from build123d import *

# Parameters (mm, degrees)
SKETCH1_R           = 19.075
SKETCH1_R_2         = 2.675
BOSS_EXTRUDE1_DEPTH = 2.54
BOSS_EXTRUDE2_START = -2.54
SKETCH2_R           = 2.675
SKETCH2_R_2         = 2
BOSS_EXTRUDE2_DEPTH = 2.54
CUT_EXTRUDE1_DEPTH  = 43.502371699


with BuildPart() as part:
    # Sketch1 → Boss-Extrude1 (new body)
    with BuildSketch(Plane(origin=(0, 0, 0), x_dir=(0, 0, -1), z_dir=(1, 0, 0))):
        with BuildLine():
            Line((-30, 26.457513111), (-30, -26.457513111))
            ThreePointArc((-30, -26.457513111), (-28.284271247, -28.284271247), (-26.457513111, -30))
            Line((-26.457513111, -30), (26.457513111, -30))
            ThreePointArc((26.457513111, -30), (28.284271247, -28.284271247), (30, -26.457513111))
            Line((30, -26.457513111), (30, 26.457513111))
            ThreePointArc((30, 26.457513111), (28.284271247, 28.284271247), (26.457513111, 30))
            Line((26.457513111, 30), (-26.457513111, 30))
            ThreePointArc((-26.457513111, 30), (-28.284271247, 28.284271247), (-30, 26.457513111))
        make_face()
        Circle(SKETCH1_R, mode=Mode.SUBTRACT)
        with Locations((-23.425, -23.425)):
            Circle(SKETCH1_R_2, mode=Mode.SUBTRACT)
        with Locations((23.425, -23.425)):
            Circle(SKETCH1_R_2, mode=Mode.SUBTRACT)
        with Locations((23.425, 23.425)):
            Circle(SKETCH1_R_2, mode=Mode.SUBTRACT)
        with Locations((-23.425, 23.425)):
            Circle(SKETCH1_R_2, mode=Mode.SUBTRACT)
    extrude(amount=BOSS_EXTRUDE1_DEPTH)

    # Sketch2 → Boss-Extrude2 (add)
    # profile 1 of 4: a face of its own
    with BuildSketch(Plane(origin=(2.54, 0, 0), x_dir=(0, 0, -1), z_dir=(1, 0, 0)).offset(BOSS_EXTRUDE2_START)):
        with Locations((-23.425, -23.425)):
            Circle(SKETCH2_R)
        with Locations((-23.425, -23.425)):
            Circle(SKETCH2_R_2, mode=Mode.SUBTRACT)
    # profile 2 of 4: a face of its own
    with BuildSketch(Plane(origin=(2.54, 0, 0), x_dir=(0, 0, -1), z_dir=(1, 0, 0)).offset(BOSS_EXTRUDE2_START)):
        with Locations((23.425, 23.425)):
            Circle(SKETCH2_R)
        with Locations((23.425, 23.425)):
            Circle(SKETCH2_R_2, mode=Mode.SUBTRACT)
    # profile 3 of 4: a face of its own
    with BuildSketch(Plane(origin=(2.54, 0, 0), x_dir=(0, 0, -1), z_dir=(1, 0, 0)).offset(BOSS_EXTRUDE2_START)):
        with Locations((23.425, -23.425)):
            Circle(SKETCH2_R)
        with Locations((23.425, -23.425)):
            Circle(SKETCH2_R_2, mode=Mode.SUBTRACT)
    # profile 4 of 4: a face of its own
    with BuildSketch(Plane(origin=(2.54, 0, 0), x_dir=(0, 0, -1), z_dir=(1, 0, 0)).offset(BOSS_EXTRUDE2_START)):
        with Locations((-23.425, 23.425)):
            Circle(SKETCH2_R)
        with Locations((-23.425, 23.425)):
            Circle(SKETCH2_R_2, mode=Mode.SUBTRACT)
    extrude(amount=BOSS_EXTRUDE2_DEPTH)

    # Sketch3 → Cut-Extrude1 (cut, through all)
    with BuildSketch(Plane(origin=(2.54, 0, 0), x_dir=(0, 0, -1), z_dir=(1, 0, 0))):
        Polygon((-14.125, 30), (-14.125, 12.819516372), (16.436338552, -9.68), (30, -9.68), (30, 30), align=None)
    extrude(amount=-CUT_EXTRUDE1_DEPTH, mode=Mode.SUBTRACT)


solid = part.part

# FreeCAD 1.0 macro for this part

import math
import FreeCAD as App
import Part
import Sketcher
from FreeCAD import Vector


def add_polygon(sketch, points):
    """Adds a closed chain of lines whose ends are joined by coincident constraints."""
    first, n = sketch.GeometryCount, len(points)
    for a, b in zip(points, points[1:] + points[:1]):
        sketch.addGeometry(Part.LineSegment(App.Vector(*a, 0), App.Vector(*b, 0)), False)
    for i in range(n):
        sketch.addConstraint(Sketcher.Constraint("Coincident", first + i, 2, first + (i + 1) % n, 1))

doc = App.newDocument("Part")
body = doc.addObject("PartDesign::Body", "Body")

# Sketch on YZ plane
sketch1 = body.newObject("Sketcher::SketchObject", "Sketch")
sketch1.AttachmentSupport = (doc.getObject("YZ_Plane"), [""])
sketch1.MapMode = "FlatFace"
sketch1.addGeometry(Part.LineSegment(Vector(26.457513, 30, 0), Vector(-26.457513, 30, 0)), False)
sketch1.addGeometry(Part.ArcOfCircle(Part.Circle(Vector(0, 0, 0), Vector(0, 0, 1), 40), math.radians(131.409622), math.radians(138.590378)), False)
sketch1.addGeometry(Part.LineSegment(Vector(-30, 26.457513, 0), Vector(-30, -26.457513, 0)), False)
sketch1.addGeometry(Part.ArcOfCircle(Part.Circle(Vector(0, 0, 0), Vector(0, 0, 1), 40), math.radians(-138.590378), math.radians(-131.409622)), False)
sketch1.addGeometry(Part.LineSegment(Vector(-26.457513, -30, 0), Vector(26.457513, -30, 0)), False)
sketch1.addGeometry(Part.ArcOfCircle(Part.Circle(Vector(0, 0, 0), Vector(0, 0, 1), 40), math.radians(-48.590378), math.radians(-41.409622)), False)
sketch1.addGeometry(Part.LineSegment(Vector(30, -26.457513, 0), Vector(30, 26.457513, 0)), False)
sketch1.addGeometry(Part.ArcOfCircle(Part.Circle(Vector(0, 0, 0), Vector(0, 0, 1), 40), math.radians(41.409622), math.radians(48.590378)), False)
sketch1.addGeometry(Part.Circle(Vector(-23.425, 23.425, 0), Vector(0, 0, 1), 2.675), False)
sketch1.addGeometry(Part.Circle(Vector(-23.425, -23.425, 0), Vector(0, 0, 1), 2.675), False)
sketch1.addGeometry(Part.Circle(Vector(23.425, 23.425, 0), Vector(0, 0, 1), 2.675), False)
sketch1.addGeometry(Part.Circle(Vector(0, 0, 0), Vector(0, 0, 1), 19.075), False)
sketch1.addGeometry(Part.Circle(Vector(23.425, -23.425, 0), Vector(0, 0, 1), 2.675), False)
sketch1.addConstraint(Sketcher.Constraint("Coincident", 0, 2, 1, 1))
sketch1.addConstraint(Sketcher.Constraint("Coincident", 1, 2, 2, 1))
sketch1.addConstraint(Sketcher.Constraint("Coincident", 2, 2, 3, 1))
sketch1.addConstraint(Sketcher.Constraint("Coincident", 3, 2, 4, 1))
sketch1.addConstraint(Sketcher.Constraint("Coincident", 4, 2, 5, 1))
sketch1.addConstraint(Sketcher.Constraint("Coincident", 5, 2, 6, 1))
sketch1.addConstraint(Sketcher.Constraint("Coincident", 6, 2, 7, 1))
sketch1.addConstraint(Sketcher.Constraint("Coincident", 7, 2, 0, 1))
sketch1.addConstraint(Sketcher.Constraint("Horizontal", 0))
sketch1.addConstraint(Sketcher.Constraint("Vertical", 2))
sketch1.addConstraint(Sketcher.Constraint("Horizontal", 4))
sketch1.addConstraint(Sketcher.Constraint("Vertical", 6))
sketch1.addConstraint(Sketcher.Constraint("Coincident", 1, 3, -1, 1))
sketch1.addConstraint(Sketcher.Constraint("Coincident", 3, 3, -1, 1))
sketch1.addConstraint(Sketcher.Constraint("Coincident", 5, 3, -1, 1))
sketch1.addConstraint(Sketcher.Constraint("Coincident", 7, 3, -1, 1))
sketch1.addConstraint(Sketcher.Constraint("Coincident", 11, 3, -1, 1))
sketch1.addConstraint(Sketcher.Constraint("Equal", 1, 3))
sketch1.addConstraint(Sketcher.Constraint("Equal", 3, 5))
sketch1.addConstraint(Sketcher.Constraint("Equal", 5, 7))
sketch1.addConstraint(Sketcher.Constraint("Equal", 8, 9))
sketch1.addConstraint(Sketcher.Constraint("Equal", 9, 10))
sketch1.addConstraint(Sketcher.Constraint("Equal", 10, 12))
sketch1.addConstraint(Sketcher.Constraint("Symmetric", 9, 3, 10, 3, -1, 1))
sketch1.addConstraint(Sketcher.Constraint("Symmetric", 8, 3, 12, 3, -1, 1))
sketch1.addConstraint(Sketcher.Constraint("Symmetric", 8, 3, 10, 3, -2))
sketch1.addConstraint(Sketcher.Constraint("Horizontal", 2, 2, 5, 2))
sketch1.addConstraint(Sketcher.Constraint("Vertical", 0, 2, 3, 2))
sketch1.addConstraint(Sketcher.Constraint("Equal", 4, 2))
sketch1.addConstraint(Sketcher.Constraint("Radius", 1, 40.0))
sketch1.addConstraint(Sketcher.Constraint("Diameter", 8, 5.35))
sketch1.addConstraint(Sketcher.Constraint("Diameter", 11, 38.15))
sketch1.addConstraint(Sketcher.Constraint("DistanceY", -1, 1, 0, 2, 30.0))
sketch1.addConstraint(Sketcher.Constraint("DistanceY", 9, 3, 8, 3, 46.85))
sketch1.addConstraint(Sketcher.Constraint("DistanceX", 8, 3, 10, 3, 46.85))
pad1 = body.newObject("PartDesign::Pad", "Pad")
pad1.Profile = sketch1
pad1.Length = 2.54

# Sketch on YZ plane
sketch2 = body.newObject("Sketcher::SketchObject", "Sketch001")
sketch2.AttachmentSupport = (doc.getObject("YZ_Plane"), [""])
sketch2.MapMode = "FlatFace"
sketch2.addGeometry(Part.Circle(Vector(-23.425, 23.425, 0), Vector(0, 0, 1), 2.675), False)
sketch2.addGeometry(Part.Circle(Vector(-23.425, 23.425, 0), Vector(0, 0, 1), 2), False)
sketch2.addGeometry(Part.Circle(Vector(23.425, -23.425, 0), Vector(0, 0, 1), 2.675), False)
sketch2.addGeometry(Part.Circle(Vector(23.425, -23.425, 0), Vector(0, 0, 1), 2), False)
sketch2.addGeometry(Part.Circle(Vector(-23.425, -23.425, 0), Vector(0, 0, 1), 2.675), False)
sketch2.addGeometry(Part.Circle(Vector(-23.425, -23.425, 0), Vector(0, 0, 1), 2), False)
sketch2.addGeometry(Part.Circle(Vector(23.425, 23.425, 0), Vector(0, 0, 1), 2.675), False)
sketch2.addGeometry(Part.Circle(Vector(23.425, 23.425, 0), Vector(0, 0, 1), 2), False)
sketch2.addConstraint(Sketcher.Constraint("Coincident", 1, 3, 0, 3))
sketch2.addConstraint(Sketcher.Constraint("Coincident", 3, 3, 2, 3))
sketch2.addConstraint(Sketcher.Constraint("Coincident", 5, 3, 4, 3))
sketch2.addConstraint(Sketcher.Constraint("Coincident", 7, 3, 6, 3))
sketch2.addConstraint(Sketcher.Constraint("Equal", 0, 2))
sketch2.addConstraint(Sketcher.Constraint("Equal", 1, 3))
sketch2.addConstraint(Sketcher.Constraint("Equal", 2, 4))
sketch2.addConstraint(Sketcher.Constraint("Equal", 3, 5))
sketch2.addConstraint(Sketcher.Constraint("Equal", 4, 6))
sketch2.addConstraint(Sketcher.Constraint("Equal", 5, 7))
sketch2.addConstraint(Sketcher.Constraint("Symmetric", 0, 3, 2, 3, -1, 1))
sketch2.addConstraint(Sketcher.Constraint("Symmetric", 4, 3, 6, 3, -1, 1))
sketch2.addConstraint(Sketcher.Constraint("Symmetric", 2, 3, 4, 3, -2))
sketch2.addConstraint(Sketcher.Constraint("Diameter", 1, 4.0))
sketch2.addConstraint(Sketcher.Constraint("Diameter", 0, 5.35))
sketch2.addConstraint(Sketcher.Constraint("DistanceX", 0, 3, 2, 3, 46.85))
sketch2.addConstraint(Sketcher.Constraint("DistanceY", 2, 3, 0, 3, 46.85))
pad2 = body.newObject("PartDesign::Pad", "Pad001")
pad2.Profile = sketch2
pad2.Length = 2.54

# Sketch on YZ plane
sketch3 = body.newObject("Sketcher::SketchObject", "Sketch002")
sketch3.AttachmentSupport = (doc.getObject("YZ_Plane"), [""])
sketch3.MapMode = "FlatFace"
sketch3.AttachmentOffset = App.Placement(Vector(0, 0, 2.54), App.Rotation())
add_polygon(sketch3, [(30, 14.125), (12.819516, 14.125), (-9.68, -16.436339), (-9.68, -30), (30, -30)])  # lines 0-4
sketch3.addConstraint(Sketcher.Constraint("Horizontal", 0))
sketch3.addConstraint(Sketcher.Constraint("Vertical", 2))
sketch3.addConstraint(Sketcher.Constraint("Horizontal", 3))
sketch3.addConstraint(Sketcher.Constraint("Vertical", 4))
sketch3.addConstraint(Sketcher.Constraint("DistanceY", 2, 2, -1, 1, 30.0))
sketch3.addConstraint(Sketcher.Constraint("DistanceX", -1, 1, 3, 2, 30.0))
sketch3.addConstraint(Sketcher.Constraint("DistanceX", 3, 1, 3, 2, 39.68))
sketch3.addConstraint(Sketcher.Constraint("DistanceY", 4, 1, 4, 2, 44.125))
sketch3.addConstraint(Sketcher.Constraint("DistanceY", 2, 2, 2, 1, 13.563661))
sketch3.addConstraint(Sketcher.Constraint("Distance", 1, 37.950279))
pocket1 = body.newObject("PartDesign::Pocket", "Pocket")
pocket1.Profile = sketch3
pocket1.Type = "ThroughAll"

doc.recompute()
